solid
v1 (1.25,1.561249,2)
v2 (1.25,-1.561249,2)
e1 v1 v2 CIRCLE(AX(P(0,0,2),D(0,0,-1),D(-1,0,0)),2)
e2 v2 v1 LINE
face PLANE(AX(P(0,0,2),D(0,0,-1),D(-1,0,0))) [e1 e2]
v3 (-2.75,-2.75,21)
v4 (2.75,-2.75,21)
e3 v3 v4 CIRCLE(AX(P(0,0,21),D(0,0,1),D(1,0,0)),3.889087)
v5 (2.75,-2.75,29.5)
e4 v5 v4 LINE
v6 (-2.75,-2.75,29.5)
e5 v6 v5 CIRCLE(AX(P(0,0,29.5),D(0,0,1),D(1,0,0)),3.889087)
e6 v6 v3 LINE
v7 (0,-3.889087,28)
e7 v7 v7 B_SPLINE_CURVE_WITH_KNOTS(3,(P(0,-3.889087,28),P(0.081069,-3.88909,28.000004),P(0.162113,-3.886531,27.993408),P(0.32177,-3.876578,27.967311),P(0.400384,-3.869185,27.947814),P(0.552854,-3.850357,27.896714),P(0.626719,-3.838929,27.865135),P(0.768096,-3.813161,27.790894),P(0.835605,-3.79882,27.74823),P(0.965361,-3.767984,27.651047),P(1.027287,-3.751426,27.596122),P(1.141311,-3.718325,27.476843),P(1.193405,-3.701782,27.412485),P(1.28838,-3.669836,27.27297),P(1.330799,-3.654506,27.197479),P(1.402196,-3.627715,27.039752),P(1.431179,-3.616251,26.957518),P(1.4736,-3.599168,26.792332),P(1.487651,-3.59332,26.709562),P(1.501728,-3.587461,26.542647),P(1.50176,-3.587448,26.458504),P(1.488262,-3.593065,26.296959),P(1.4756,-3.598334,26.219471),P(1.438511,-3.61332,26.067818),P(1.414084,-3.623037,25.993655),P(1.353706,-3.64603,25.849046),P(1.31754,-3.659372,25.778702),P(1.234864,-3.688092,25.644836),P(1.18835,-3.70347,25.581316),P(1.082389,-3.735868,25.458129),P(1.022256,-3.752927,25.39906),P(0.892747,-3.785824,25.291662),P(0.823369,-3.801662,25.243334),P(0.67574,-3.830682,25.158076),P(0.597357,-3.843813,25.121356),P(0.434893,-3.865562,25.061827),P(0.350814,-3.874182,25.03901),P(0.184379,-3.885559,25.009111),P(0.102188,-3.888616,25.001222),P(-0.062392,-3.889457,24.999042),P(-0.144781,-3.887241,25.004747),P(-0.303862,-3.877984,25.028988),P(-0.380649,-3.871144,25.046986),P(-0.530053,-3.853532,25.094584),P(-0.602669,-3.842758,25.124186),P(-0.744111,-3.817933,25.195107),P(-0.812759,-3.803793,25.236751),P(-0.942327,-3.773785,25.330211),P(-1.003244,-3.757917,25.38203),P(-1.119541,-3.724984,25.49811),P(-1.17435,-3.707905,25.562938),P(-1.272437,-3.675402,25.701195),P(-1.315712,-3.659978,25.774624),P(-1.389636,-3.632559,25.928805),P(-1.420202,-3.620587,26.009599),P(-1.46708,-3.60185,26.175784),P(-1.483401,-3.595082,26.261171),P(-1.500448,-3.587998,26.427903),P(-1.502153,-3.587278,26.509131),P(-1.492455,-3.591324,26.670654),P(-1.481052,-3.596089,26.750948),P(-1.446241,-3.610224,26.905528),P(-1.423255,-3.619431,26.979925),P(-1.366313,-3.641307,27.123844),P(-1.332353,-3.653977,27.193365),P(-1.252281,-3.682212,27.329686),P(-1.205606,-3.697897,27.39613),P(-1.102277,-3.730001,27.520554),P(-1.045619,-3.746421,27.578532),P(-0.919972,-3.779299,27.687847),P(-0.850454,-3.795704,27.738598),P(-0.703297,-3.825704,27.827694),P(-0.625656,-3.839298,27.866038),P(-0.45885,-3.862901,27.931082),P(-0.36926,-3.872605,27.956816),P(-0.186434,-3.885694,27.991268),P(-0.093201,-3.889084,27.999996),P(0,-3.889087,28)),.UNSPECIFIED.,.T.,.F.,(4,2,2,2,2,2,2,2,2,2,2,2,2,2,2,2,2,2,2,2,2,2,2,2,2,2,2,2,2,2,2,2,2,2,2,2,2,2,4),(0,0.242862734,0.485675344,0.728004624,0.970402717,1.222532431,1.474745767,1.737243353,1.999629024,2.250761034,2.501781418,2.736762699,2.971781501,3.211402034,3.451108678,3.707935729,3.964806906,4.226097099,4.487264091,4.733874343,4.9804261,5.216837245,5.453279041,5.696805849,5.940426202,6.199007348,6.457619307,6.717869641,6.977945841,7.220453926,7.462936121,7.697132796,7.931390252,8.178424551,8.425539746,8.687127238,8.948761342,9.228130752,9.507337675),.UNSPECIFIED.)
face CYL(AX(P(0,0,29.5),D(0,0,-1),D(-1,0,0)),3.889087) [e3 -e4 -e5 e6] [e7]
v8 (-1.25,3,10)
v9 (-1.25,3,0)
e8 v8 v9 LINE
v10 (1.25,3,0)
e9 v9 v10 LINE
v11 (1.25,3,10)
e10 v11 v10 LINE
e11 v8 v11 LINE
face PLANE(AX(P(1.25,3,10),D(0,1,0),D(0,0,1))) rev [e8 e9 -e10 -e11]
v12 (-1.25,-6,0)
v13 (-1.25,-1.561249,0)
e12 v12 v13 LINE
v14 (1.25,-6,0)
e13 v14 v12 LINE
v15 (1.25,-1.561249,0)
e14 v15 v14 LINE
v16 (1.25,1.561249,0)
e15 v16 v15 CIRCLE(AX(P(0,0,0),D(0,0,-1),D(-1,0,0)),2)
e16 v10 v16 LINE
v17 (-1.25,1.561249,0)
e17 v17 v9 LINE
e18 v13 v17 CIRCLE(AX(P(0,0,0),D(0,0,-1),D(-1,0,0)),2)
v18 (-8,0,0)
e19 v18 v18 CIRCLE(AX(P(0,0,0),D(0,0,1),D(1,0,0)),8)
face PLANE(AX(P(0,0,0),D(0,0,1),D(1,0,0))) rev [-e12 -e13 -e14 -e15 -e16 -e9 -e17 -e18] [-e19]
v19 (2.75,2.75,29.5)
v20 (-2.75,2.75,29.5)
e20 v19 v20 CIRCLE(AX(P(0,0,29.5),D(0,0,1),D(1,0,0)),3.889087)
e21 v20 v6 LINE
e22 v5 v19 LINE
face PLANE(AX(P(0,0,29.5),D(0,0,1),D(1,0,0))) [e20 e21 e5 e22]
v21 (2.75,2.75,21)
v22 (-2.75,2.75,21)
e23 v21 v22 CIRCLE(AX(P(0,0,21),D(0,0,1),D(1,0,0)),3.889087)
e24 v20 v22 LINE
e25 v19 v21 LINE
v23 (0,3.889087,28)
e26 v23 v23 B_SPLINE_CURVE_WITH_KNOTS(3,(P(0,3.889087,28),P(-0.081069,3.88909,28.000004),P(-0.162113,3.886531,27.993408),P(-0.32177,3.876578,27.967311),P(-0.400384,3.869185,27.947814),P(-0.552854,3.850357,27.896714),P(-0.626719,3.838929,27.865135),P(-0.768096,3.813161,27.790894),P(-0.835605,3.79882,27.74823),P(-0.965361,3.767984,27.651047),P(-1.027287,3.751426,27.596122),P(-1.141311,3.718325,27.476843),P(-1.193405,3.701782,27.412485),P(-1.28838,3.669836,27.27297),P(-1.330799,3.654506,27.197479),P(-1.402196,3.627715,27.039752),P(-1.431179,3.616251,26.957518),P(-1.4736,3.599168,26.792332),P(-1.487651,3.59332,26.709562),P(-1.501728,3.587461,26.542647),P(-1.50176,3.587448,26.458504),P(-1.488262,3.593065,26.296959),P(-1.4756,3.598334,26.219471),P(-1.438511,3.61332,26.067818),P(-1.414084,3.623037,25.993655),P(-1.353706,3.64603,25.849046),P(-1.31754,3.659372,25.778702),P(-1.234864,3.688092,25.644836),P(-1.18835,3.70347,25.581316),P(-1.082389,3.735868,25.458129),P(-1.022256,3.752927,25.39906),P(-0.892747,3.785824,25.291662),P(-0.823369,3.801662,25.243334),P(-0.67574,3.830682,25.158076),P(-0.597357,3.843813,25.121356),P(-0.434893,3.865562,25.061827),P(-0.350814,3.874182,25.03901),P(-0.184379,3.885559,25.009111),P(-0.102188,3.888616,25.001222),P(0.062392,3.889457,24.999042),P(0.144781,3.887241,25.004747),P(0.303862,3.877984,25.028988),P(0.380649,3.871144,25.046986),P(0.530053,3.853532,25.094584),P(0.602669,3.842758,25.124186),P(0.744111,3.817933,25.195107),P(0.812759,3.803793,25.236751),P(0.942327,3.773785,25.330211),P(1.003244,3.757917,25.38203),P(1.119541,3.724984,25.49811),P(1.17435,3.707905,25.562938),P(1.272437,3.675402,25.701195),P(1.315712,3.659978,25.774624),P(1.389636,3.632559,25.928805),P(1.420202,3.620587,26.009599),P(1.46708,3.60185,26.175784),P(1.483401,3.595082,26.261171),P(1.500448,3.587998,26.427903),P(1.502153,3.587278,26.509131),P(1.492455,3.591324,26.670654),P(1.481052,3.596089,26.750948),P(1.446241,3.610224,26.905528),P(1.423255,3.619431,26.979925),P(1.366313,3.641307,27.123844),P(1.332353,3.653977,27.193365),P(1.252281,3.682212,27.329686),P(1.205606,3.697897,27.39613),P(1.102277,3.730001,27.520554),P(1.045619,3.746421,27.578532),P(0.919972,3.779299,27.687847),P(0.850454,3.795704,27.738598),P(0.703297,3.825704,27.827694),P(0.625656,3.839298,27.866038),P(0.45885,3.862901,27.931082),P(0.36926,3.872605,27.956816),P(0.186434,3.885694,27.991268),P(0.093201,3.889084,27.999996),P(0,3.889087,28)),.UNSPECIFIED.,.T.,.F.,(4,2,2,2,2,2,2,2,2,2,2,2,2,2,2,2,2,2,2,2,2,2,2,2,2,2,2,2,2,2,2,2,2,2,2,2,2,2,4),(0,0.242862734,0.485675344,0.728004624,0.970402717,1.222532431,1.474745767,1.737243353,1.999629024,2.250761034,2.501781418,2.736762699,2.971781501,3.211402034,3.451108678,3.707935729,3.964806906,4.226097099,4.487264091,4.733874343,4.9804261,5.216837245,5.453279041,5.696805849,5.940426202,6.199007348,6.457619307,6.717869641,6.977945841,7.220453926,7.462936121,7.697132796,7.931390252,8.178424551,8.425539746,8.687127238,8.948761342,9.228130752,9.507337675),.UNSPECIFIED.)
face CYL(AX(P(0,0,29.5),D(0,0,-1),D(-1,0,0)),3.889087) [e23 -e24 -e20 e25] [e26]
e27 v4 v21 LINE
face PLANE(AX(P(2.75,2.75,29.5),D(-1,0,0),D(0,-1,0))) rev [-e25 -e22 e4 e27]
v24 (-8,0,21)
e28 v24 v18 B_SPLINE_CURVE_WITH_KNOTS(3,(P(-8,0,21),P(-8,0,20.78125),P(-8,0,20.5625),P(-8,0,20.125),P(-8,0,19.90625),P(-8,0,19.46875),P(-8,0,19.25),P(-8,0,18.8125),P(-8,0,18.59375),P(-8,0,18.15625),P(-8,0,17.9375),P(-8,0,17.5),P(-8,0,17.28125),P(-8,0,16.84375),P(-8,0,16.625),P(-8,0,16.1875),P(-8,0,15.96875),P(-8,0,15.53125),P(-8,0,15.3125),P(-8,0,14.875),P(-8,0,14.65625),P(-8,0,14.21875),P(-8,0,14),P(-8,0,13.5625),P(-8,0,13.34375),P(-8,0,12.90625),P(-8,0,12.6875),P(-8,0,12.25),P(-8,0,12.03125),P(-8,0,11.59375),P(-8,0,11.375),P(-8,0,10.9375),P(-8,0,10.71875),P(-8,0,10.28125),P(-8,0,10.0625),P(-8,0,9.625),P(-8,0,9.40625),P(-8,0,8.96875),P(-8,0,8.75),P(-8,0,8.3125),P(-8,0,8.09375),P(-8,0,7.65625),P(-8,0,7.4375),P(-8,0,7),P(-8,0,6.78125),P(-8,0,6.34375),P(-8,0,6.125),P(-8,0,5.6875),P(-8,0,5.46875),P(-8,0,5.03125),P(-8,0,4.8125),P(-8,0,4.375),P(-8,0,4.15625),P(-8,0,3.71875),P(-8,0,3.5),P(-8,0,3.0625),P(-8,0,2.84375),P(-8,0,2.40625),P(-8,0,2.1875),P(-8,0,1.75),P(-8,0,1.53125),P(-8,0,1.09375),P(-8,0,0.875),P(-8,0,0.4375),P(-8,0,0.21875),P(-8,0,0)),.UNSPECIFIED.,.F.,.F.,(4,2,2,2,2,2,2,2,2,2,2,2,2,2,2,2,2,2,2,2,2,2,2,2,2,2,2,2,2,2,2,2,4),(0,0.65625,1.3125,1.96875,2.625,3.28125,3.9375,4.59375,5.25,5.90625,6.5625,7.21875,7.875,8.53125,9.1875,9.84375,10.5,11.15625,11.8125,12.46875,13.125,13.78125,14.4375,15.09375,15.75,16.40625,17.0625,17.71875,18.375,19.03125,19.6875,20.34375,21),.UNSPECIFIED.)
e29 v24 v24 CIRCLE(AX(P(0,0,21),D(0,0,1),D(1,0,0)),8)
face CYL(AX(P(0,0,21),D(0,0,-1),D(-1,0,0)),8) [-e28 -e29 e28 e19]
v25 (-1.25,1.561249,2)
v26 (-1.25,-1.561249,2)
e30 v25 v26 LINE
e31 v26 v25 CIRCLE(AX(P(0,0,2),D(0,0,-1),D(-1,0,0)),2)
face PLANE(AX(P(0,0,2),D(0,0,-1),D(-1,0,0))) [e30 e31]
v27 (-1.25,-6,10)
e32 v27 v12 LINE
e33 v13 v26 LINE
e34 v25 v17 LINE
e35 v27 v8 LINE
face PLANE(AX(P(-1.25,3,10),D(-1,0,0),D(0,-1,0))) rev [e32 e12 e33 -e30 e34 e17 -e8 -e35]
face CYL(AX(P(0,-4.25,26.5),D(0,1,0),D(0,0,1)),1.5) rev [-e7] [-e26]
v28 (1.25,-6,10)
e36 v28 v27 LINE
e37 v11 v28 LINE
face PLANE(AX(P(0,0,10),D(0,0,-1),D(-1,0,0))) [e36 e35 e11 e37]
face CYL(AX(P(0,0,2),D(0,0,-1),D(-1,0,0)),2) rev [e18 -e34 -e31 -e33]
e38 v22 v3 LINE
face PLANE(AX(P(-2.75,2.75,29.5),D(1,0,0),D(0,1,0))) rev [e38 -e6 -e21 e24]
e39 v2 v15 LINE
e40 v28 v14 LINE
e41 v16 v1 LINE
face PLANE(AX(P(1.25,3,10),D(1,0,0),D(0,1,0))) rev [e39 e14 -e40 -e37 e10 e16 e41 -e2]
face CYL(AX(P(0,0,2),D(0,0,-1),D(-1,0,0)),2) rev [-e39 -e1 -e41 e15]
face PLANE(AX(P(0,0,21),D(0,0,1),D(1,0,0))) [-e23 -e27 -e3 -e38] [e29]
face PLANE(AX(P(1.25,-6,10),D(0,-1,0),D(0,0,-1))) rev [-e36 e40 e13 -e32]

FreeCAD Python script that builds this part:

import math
import FreeCAD as App
import Part
import Sketcher
from FreeCAD import Vector

doc = App.newDocument("Part")
params = doc.addObject("Spreadsheet::Sheet", "Params")
for row, (alias, value) in enumerate([
    ("sketch1_diameter", "16 mm"),
    ("pad1_length", "21 mm"),
    ("sketch2_height", "9 mm"),
    ("sketch2_width", "2.5 mm"),
    ("pocket1_length", "10 mm"),
    ("sketch3_diameter", "4 mm"),
    ("pocket2_length", "2 mm"),
    ("sketch4_height", "5.5 mm"),
    ("pad2_length", "8.5 mm"),
    ("sketch5_diameter", "3 mm"),
    ("pocket3_length", "8.5 mm"),
], start=1):
    params.set(f"A{row}", alias)
    params.set(f"B{row}", "=" + value)
    params.setAlias(f"B{row}", alias)

body = doc.addObject("PartDesign::Body", "Body")

sketch1 = doc.addObject("Sketcher::SketchObject", "Sketch")
body.addObject(sketch1)
sketch1.AttachmentSupport = (doc.XY_Plane, [""])
sketch1.MapMode = "FlatFace"
sketch1.addGeometry(Part.Circle(Vector(0, 0, 0), Vector(0, 0, 1), 8), False)
sketch1.addConstraint([
    Sketcher.Constraint("Coincident", 0, 3, -1, 1),
    Sketcher.Constraint("Diameter", 0, 16.0),
])
sketch1.setExpression("Constraints[1]", "Params.sketch1_diameter")
pad1 = doc.addObject("PartDesign::Pad", "Pad")
body.addObject(pad1)
pad1.Profile = sketch1
pad1.setExpression("Length", "Params.pad1_length")

sketch2 = doc.addObject("Sketcher::SketchObject", "Sketch001")
body.addObject(sketch2)
sketch2.AttachmentSupport = (doc.XY_Plane, [""])
sketch2.MapMode = "FlatFace"
sketch2.addGeometry([
    Part.LineSegment(Vector(1.2, 3, 0), Vector(1.2, -6, 0)),
    Part.LineSegment(Vector(1.2, -6, 0), Vector(-1.2, -6, 0)),
    Part.LineSegment(Vector(-1.2, -6, 0), Vector(-1.2, 3, 0)),
    Part.LineSegment(Vector(-1.2, 3, 0), Vector(1.2, 3, 0)),
], False)
sketch2.addConstraint([
    Sketcher.Constraint("Coincident", 0, 2, 1, 1),
    Sketcher.Constraint("Coincident", 1, 2, 2, 1),
    Sketcher.Constraint("Coincident", 2, 2, 3, 1),
    Sketcher.Constraint("Coincident", 3, 2, 0, 1),
    Sketcher.Constraint("Vertical", 0),
    Sketcher.Constraint("Horizontal", 1),
    Sketcher.Constraint("Vertical", 2),
    Sketcher.Constraint("Horizontal", 3),
    Sketcher.Constraint("DistanceY", 0, 2, 0, 1, 9.0),
    Sketcher.Constraint("DistanceX", 1, 2, 1, 1, 2.5),
    Sketcher.Constraint("DistanceY", 0, 2, -1, 1, 6.0),
    Sketcher.Constraint("DistanceX", -1, 1, 0, 2, 1.25),
])
sketch2.setExpression("Constraints[8]", "Params.sketch2_height")
sketch2.setExpression("Constraints[9]", "Params.sketch2_width")
pocket1 = doc.addObject("PartDesign::Pocket", "Pocket")
body.addObject(pocket1)
pocket1.Profile = sketch2
pocket1.setExpression("Length", "Params.pocket1_length")
pocket1.Reversed = True

sketch3 = doc.addObject("Sketcher::SketchObject", "Sketch002")
body.addObject(sketch3)
sketch3.AttachmentSupport = (doc.XY_Plane, [""])
sketch3.MapMode = "FlatFace"
sketch3.addGeometry(Part.Circle(Vector(0, 0, 0), Vector(0, 0, 1), 2), False)
sketch3.addConstraint([
    Sketcher.Constraint("Coincident", 0, 3, -1, 1),
    Sketcher.Constraint("Diameter", 0, 4.0),
])
sketch3.setExpression("Constraints[1]", "Params.sketch3_diameter")
pocket2 = doc.addObject("PartDesign::Pocket", "Pocket001")
body.addObject(pocket2)
pocket2.Profile = sketch3
pocket2.setExpression("Length", "Params.pocket2_length")
pocket2.Reversed = True

sketch4 = doc.addObject("Sketcher::SketchObject", "Sketch003")
body.addObject(sketch4)
sketch4.AttachmentSupport = (doc.XY_Plane, [""])
sketch4.MapMode = "FlatFace"
sketch4.AttachmentOffset = App.Placement(Vector(0, 0, 21), App.Rotation())
sketch4.addGeometry([
    Part.LineSegment(Vector(-2.8, 2.8, 0), Vector(-2.8, -2.8, 0)),
    Part.ArcOfCircle(Part.Circle(Vector(0, 0, 0), Vector(0, 0, 1), 3.9), math.radians(-135), math.radians(-45)),
    Part.LineSegment(Vector(2.8, -2.8, 0), Vector(2.8, 2.8, 0)),
    Part.ArcOfCircle(Part.Circle(Vector(0, 0, 0), Vector(0, 0, 1), 3.9), math.radians(45), math.radians(135)),
], False)
sketch4.addConstraint([
    Sketcher.Constraint("Coincident", 0, 2, 1, 1),
    Sketcher.Constraint("Coincident", 1, 2, 2, 1),
    Sketcher.Constraint("Coincident", 2, 2, 3, 1),
    Sketcher.Constraint("Coincident", 3, 2, 0, 1),
    Sketcher.Constraint("Vertical", 0),
    Sketcher.Constraint("Vertical", 2),
    Sketcher.Constraint("Coincident", 1, 3, -1, 1),
    Sketcher.Constraint("Coincident", 3, 3, -1, 1),
    Sketcher.Constraint("Equal", 1, 3),
    Sketcher.Constraint("Horizontal", 0, 2, 1, 2),
    Sketcher.Constraint("DistanceY", 0, 2, 0, 1, 5.5),
    Sketcher.Constraint("DistanceX", 0, 2, 1, 2, 5.5),
])
sketch4.setExpression("Constraints[10]", "Params.sketch4_height")
pad2 = doc.addObject("PartDesign::Pad", "Pad001")
body.addObject(pad2)
pad2.Profile = sketch4
pad2.setExpression("Length", "Params.pad2_length")

sketch5 = doc.addObject("Sketcher::SketchObject", "Sketch004")
body.addObject(sketch5)
sketch5.AttachmentSupport = (doc.XZ_Plane, [""])
sketch5.MapMode = "FlatFace"
sketch5.addGeometry(Part.Circle(Vector(0, 26.5, 0), Vector(0, 0, 1), 1.5), False)
sketch5.addConstraint([
    Sketcher.Constraint("PointOnObject", 0, 3, -2),
    Sketcher.Constraint("Diameter", 0, 3.0),
    Sketcher.Constraint("DistanceY", -1, 1, 0, 3, 26.5),
])
sketch5.setExpression("Constraints[1]", "Params.sketch5_diameter")
pocket3 = doc.addObject("PartDesign::Pocket", "Pocket002")
body.addObject(pocket3)
pocket3.Profile = sketch5
pocket3.setExpression("Length", "Params.pocket3_length")
pocket3.Midplane = True

doc.recompute()
